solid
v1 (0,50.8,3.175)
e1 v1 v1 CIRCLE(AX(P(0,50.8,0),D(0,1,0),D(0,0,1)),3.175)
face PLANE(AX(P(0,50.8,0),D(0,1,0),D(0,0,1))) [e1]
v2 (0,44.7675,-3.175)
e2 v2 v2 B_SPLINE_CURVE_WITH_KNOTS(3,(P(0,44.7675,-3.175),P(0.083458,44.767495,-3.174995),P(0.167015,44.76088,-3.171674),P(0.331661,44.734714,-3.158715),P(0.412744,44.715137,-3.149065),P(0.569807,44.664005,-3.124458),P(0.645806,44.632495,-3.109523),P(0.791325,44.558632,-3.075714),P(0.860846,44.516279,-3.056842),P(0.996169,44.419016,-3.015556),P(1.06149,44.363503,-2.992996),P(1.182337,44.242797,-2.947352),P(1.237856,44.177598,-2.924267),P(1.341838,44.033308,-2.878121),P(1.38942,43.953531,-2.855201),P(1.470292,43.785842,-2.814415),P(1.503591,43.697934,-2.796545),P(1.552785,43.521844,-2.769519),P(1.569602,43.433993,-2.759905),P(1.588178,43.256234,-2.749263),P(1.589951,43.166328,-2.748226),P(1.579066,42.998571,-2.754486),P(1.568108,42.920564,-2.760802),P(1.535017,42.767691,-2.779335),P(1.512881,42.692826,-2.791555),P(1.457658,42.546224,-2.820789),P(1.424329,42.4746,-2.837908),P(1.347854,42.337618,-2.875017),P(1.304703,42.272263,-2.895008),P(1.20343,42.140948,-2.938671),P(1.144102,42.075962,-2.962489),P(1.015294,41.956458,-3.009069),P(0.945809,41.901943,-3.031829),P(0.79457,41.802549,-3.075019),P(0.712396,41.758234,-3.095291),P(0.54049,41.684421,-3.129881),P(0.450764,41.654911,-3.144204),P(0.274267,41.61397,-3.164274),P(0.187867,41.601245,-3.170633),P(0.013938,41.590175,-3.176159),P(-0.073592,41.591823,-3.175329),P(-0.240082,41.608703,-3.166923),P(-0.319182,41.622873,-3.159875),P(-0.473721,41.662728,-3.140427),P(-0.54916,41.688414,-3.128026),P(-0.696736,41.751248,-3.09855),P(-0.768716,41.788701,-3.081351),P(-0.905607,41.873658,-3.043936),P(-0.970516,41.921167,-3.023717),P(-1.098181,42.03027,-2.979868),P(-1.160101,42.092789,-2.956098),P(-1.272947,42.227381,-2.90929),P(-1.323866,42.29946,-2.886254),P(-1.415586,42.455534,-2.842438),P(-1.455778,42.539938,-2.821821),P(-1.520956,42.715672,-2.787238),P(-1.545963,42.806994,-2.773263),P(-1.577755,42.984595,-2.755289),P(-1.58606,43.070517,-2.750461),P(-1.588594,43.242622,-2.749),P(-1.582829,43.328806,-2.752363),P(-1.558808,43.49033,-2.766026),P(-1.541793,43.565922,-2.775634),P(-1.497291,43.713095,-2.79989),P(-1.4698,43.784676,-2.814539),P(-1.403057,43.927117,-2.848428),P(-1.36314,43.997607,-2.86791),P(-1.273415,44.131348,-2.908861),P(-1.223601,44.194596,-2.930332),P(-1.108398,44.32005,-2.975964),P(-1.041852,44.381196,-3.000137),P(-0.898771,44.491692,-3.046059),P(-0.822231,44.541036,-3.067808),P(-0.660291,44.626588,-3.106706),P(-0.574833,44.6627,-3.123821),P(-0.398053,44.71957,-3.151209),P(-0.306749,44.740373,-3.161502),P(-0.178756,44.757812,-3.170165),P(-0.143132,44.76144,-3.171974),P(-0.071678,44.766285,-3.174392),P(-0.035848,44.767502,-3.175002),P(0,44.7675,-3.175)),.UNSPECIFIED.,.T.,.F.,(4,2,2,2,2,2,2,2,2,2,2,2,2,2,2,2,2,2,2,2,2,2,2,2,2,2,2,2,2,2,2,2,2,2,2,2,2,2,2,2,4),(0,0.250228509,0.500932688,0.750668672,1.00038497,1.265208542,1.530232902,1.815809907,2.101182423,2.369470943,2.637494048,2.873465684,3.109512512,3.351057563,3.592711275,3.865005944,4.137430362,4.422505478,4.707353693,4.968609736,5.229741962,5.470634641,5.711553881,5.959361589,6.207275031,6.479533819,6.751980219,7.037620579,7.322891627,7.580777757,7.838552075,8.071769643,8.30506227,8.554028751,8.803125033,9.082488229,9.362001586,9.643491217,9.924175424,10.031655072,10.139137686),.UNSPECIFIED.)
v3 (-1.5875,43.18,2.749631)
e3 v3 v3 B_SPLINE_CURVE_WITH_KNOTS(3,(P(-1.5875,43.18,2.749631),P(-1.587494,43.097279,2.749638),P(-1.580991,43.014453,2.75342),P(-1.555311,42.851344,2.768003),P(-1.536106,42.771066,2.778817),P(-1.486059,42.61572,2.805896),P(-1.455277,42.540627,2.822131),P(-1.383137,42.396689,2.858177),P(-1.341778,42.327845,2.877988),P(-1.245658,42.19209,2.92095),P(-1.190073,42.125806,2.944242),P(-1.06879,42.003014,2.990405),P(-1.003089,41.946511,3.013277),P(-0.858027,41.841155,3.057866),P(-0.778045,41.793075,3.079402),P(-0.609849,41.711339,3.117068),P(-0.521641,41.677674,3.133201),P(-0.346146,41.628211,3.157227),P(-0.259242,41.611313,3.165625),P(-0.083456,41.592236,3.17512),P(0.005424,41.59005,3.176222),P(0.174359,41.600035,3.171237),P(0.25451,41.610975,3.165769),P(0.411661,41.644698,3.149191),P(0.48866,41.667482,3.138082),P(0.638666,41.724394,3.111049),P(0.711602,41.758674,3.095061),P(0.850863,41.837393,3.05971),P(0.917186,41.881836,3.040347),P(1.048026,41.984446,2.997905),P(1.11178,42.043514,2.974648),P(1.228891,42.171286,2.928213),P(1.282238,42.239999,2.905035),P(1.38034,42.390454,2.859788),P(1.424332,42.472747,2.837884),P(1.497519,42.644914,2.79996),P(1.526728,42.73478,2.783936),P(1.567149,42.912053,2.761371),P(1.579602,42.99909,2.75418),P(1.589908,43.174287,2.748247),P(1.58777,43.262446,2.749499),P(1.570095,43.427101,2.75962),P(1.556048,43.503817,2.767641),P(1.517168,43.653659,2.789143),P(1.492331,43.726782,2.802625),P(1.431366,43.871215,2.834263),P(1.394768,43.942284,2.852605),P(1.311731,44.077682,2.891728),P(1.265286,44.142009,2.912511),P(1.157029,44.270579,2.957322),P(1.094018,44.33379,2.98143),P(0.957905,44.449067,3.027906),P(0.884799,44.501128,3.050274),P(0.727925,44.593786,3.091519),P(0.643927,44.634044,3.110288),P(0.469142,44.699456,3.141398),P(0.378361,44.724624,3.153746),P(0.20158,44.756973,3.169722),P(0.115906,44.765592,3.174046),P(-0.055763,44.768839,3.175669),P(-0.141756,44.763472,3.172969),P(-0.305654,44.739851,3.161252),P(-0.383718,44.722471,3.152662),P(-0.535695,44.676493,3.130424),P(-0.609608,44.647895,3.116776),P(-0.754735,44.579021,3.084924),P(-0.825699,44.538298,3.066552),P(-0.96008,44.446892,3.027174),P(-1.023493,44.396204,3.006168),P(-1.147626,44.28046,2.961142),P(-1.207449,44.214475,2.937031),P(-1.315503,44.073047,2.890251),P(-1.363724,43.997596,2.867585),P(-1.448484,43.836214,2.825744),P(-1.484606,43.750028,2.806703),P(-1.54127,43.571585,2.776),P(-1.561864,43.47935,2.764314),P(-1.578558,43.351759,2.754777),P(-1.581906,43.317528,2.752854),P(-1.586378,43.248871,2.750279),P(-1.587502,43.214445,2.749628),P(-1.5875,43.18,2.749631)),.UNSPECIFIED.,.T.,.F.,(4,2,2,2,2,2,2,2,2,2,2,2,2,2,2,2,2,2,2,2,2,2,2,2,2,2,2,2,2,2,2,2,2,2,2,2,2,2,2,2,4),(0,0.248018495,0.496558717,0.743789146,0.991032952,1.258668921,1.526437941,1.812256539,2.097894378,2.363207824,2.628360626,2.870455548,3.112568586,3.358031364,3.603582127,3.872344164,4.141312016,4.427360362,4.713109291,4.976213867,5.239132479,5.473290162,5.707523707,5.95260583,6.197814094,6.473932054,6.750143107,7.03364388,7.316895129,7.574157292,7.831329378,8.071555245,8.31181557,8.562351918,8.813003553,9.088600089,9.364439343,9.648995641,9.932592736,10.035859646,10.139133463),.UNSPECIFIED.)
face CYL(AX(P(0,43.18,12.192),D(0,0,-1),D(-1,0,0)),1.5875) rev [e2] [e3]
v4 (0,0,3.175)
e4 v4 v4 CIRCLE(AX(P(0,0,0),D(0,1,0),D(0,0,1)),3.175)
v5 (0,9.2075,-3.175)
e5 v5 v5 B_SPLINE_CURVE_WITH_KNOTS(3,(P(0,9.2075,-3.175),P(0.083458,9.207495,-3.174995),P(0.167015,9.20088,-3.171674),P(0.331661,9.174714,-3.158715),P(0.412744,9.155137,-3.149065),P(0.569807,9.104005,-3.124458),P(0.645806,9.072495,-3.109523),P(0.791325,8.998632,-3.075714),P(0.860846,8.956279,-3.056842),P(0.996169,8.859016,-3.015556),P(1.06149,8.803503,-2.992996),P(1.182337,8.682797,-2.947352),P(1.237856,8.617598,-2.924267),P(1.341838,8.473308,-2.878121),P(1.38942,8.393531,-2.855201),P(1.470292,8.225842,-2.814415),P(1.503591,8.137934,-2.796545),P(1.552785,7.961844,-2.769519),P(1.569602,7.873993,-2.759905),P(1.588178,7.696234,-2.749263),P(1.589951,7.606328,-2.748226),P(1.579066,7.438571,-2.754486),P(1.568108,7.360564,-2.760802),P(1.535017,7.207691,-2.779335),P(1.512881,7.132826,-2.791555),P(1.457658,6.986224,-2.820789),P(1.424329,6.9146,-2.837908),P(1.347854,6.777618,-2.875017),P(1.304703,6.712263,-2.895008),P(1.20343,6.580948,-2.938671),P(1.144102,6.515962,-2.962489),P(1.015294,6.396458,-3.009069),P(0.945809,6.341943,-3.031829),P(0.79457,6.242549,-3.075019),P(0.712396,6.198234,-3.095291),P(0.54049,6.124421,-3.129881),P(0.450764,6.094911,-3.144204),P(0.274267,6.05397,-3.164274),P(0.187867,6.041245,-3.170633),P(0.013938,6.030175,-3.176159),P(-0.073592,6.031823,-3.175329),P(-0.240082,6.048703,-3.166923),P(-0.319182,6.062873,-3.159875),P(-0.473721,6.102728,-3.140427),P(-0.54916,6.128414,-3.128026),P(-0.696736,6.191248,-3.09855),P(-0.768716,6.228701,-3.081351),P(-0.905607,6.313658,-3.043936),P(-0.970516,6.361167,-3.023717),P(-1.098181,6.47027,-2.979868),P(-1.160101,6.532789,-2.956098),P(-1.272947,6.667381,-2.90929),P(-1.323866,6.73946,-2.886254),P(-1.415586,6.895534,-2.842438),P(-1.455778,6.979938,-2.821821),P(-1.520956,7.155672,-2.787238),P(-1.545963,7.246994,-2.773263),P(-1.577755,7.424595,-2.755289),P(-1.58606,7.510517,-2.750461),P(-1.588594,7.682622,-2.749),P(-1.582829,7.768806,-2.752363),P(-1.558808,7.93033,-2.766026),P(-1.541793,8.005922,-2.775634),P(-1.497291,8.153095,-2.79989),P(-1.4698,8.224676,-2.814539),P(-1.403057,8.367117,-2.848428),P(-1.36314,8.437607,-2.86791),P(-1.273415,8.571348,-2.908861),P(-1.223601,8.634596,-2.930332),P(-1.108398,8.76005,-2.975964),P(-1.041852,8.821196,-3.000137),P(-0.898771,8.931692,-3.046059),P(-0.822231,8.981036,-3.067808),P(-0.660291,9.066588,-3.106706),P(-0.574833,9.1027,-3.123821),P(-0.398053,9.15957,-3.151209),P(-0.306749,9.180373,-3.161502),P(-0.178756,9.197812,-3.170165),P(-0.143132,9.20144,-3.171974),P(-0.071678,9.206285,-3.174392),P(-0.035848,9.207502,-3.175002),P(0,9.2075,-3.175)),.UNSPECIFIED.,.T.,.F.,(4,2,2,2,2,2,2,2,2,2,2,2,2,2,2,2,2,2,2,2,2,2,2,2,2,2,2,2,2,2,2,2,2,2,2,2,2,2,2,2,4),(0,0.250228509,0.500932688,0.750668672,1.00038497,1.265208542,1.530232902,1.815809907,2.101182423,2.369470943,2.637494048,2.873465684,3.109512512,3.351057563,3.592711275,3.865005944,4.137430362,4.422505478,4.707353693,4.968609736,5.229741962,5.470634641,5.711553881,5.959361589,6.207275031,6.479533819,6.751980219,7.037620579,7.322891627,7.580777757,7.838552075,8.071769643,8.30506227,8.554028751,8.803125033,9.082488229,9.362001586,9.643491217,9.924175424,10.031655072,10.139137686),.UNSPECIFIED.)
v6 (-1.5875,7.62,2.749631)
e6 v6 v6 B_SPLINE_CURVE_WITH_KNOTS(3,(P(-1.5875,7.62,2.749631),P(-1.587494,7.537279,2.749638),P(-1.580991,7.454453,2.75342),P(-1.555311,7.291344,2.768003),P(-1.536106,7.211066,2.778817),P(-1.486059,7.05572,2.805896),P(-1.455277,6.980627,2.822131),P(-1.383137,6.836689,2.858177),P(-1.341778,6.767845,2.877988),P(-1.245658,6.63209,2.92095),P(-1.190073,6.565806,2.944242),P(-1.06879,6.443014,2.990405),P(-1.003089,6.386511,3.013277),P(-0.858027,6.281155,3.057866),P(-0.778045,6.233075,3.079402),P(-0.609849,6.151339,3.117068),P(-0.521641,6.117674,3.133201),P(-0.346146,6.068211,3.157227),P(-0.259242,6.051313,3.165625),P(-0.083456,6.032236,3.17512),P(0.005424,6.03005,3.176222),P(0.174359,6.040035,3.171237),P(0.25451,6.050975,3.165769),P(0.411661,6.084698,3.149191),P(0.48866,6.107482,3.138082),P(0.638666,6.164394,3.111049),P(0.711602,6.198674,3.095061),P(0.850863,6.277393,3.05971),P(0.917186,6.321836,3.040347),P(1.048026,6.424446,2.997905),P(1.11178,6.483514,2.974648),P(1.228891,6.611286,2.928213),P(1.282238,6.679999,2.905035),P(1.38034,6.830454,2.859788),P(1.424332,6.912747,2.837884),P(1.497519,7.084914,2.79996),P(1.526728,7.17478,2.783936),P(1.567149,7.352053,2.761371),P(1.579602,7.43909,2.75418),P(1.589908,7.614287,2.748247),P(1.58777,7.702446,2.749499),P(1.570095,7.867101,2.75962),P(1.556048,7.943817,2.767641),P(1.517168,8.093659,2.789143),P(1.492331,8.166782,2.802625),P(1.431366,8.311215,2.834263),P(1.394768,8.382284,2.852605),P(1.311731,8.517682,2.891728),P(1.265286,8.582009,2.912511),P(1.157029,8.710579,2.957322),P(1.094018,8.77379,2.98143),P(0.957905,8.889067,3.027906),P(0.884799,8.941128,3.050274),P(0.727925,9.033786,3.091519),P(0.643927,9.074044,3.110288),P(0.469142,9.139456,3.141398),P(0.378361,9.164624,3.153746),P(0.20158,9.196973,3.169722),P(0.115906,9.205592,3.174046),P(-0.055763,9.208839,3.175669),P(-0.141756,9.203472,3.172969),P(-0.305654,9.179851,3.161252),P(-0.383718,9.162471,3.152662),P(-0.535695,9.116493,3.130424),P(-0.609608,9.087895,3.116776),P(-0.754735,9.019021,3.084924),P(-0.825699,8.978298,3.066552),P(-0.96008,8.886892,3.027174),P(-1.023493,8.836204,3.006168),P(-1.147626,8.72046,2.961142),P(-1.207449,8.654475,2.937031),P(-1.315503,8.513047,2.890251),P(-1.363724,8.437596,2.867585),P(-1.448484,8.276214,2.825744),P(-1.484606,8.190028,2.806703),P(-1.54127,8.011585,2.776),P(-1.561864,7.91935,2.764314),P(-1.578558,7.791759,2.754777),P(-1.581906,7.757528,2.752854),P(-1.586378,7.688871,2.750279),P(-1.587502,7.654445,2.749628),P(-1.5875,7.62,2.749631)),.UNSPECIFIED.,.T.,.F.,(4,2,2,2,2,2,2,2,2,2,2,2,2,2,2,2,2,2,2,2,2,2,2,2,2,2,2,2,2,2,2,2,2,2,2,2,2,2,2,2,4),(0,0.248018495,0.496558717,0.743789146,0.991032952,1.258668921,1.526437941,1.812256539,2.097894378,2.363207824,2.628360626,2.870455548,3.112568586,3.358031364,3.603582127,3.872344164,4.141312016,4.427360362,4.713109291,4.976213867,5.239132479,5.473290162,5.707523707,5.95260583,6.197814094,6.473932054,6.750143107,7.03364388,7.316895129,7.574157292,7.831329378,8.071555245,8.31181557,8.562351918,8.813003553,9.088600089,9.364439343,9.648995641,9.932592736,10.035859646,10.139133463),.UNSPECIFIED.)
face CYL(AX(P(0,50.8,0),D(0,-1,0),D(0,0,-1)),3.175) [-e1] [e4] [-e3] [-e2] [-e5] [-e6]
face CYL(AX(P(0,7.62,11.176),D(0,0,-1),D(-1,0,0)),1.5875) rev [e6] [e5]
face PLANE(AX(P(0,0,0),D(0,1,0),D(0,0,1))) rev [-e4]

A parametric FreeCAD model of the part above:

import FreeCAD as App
import Part
import Sketcher
from FreeCAD import Vector
Q = App.Units.Quantity

doc = App.newDocument("Part")
body = doc.addObject("PartDesign::Body", "Body")

sketch1 = body.newObject("Sketcher::SketchObject", "Sketch")
sketch1.AttachmentSupport = (doc.getObject("XZ_Plane"), [""])
sketch1.MapMode = "FlatFace"
sketch1.addGeometry(Part.Circle(Vector(0, 0, 0), Vector(0, 0, 1), 3.2), False)
sketch1.addConstraint([
    Sketcher.Constraint("Coincident", 0, 3, -1, 1),
    Sketcher.Constraint("Diameter", 0, Q("0.25 in")),
])
pad1 = body.newObject("PartDesign::Pad", "Pad")
pad1.Profile = sketch1
pad1.Length = Q("2 in")
pad1.Reversed = True

sketch2 = body.newObject("Sketcher::SketchObject", "Sketch001")
sketch2.AttachmentSupport = (doc.getObject("XY_Plane"), [""])
sketch2.MapMode = "FlatFace"
sketch2.addGeometry(Part.Circle(Vector(0, 43.2, 0), Vector(0, 0, 1), 1.6), False)
sketch2.addConstraint([
    Sketcher.Constraint("PointOnObject", 0, 3, -2),
    Sketcher.Constraint("Diameter", 0, Q("0.125 in")),
    Sketcher.Constraint("DistanceY", -1, 1, 0, 3, Q("1.7 in")),
])
pocket1 = body.newObject("PartDesign::Pocket", "Pocket")
pocket1.Profile = sketch2
pocket1.Type = "ThroughAll"
pocket1.Midplane = True

sketch3 = body.newObject("Sketcher::SketchObject", "Sketch002")
sketch3.AttachmentSupport = (doc.getObject("XY_Plane"), [""])
sketch3.MapMode = "FlatFace"
sketch3.addGeometry(Part.Circle(Vector(0, 7.6, 0), Vector(0, 0, 1), 1.6), False)
sketch3.addConstraint([
    Sketcher.Constraint("PointOnObject", 0, 3, -2),
    Sketcher.Constraint("Diameter", 0, Q("0.125 in")),
    Sketcher.Constraint("DistanceY", -1, 1, 0, 3, Q("0.3 in")),
])
pocket2 = body.newObject("PartDesign::Pocket", "Pocket001")
pocket2.Profile = sketch3
pocket2.Type = "ThroughAll"
pocket2.Midplane = True

doc.recompute()
